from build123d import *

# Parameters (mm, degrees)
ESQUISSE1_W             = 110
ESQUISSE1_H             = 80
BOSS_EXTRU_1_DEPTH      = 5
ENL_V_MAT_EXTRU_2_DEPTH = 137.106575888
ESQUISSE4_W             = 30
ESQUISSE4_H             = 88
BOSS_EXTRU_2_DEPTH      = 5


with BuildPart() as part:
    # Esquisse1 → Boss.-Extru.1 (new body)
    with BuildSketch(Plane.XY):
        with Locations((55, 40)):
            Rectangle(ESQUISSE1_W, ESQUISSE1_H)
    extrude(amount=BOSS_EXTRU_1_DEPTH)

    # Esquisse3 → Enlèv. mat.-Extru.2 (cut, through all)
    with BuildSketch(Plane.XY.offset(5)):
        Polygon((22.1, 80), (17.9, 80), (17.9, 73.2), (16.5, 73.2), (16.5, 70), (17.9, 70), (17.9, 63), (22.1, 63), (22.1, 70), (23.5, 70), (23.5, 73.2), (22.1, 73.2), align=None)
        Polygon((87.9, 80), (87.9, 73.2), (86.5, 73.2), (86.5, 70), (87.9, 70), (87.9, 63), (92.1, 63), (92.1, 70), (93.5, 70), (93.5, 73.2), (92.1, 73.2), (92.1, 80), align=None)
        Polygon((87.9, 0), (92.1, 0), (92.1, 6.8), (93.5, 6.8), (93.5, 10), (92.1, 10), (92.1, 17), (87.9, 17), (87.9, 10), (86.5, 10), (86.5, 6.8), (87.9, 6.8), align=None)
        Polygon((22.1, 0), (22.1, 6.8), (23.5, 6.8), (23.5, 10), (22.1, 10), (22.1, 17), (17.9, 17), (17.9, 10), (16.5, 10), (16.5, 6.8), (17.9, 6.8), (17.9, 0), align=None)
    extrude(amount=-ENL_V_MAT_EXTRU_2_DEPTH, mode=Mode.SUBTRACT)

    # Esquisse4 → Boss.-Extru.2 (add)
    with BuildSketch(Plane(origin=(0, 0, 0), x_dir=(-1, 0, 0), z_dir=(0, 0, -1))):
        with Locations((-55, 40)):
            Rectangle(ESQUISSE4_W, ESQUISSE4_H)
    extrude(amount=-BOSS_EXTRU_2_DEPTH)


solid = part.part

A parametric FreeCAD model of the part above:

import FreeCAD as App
import Part
import Sketcher
from FreeCAD import Vector
Q = App.Units.Quantity

doc = App.newDocument("Part")
body = doc.addObject("PartDesign::Body", "Body")

# Sketch on XY plane
sketch1 = body.newObject("Sketcher::SketchObject", "Sketch")
sketch1.AttachmentSupport = (doc.getObject("XY_Plane"), [""])
sketch1.MapMode = "FlatFace"
sketch1.addGeometry(Part.LineSegment(Vector(0, 80, 0), Vector(0, 0, 0)), False)
sketch1.addGeometry(Part.LineSegment(Vector(0, 0, 0), Vector(110, 0, 0)), False)
sketch1.addGeometry(Part.LineSegment(Vector(110, 0, 0), Vector(110, 80, 0)), False)
sketch1.addGeometry(Part.LineSegment(Vector(110, 80, 0), Vector(0, 80, 0)), False)
sketch1.addConstraint(Sketcher.Constraint("Coincident", 0, 2, 1, 1))
sketch1.addConstraint(Sketcher.Constraint("Coincident", 1, 2, 2, 1))
sketch1.addConstraint(Sketcher.Constraint("Coincident", 2, 2, 3, 1))
sketch1.addConstraint(Sketcher.Constraint("Coincident", 3, 2, 0, 1))
sketch1.addConstraint(Sketcher.Constraint("Vertical", 0))
sketch1.addConstraint(Sketcher.Constraint("Horizontal", 1))
sketch1.addConstraint(Sketcher.Constraint("Vertical", 2))
sketch1.addConstraint(Sketcher.Constraint("Horizontal", 3))
sketch1.addConstraint(Sketcher.Constraint("Coincident", 0, 2, -1, 1))
sketch1.addConstraint(Sketcher.Constraint("DistanceX", 1, 1, 1, 2, Q("110 mm")))
sketch1.addConstraint(Sketcher.Constraint("DistanceY", 0, 2, 0, 1, Q("80 mm")))
pad1 = body.newObject("PartDesign::Pad", "Pad")
pad1.Profile = sketch1
pad1.Length = 5

# Sketch on XY plane
sketch2 = body.newObject("Sketcher::SketchObject", "Sketch001")
sketch2.AttachmentSupport = (doc.getObject("XY_Plane"), [""])
sketch2.MapMode = "FlatFace"
sketch2.AttachmentOffset = App.Placement(Vector(0, 0, 5), App.Rotation())
sketch2.addGeometry(Part.LineSegment(Vector(22.1, 80, 0), Vector(17.9, 80, 0)), False)
sketch2.addGeometry(Part.LineSegment(Vector(17.9, 80, 0), Vector(17.9, 73.2, 0)), False)
sketch2.addGeometry(Part.LineSegment(Vector(17.9, 73.2, 0), Vector(16.5, 73.2, 0)), False)
sketch2.addGeometry(Part.LineSegment(Vector(16.5, 73.2, 0), Vector(16.5, 70, 0)), False)
sketch2.addGeometry(Part.LineSegment(Vector(16.5, 70, 0), Vector(17.9, 70, 0)), False)
sketch2.addGeometry(Part.LineSegment(Vector(17.9, 70, 0), Vector(17.9, 63, 0)), False)
sketch2.addGeometry(Part.LineSegment(Vector(17.9, 63, 0), Vector(22.1, 63, 0)), False)
sketch2.addGeometry(Part.LineSegment(Vector(22.1, 63, 0), Vector(22.1, 70, 0)), False)
sketch2.addGeometry(Part.LineSegment(Vector(22.1, 70, 0), Vector(23.5, 70, 0)), False)
sketch2.addGeometry(Part.LineSegment(Vector(23.5, 70, 0), Vector(23.5, 73.2, 0)), False)
sketch2.addGeometry(Part.LineSegment(Vector(23.5, 73.2, 0), Vector(22.1, 73.2, 0)), False)
sketch2.addGeometry(Part.LineSegment(Vector(22.1, 73.2, 0), Vector(22.1, 80, 0)), False)
sketch2.addGeometry(Part.LineSegment(Vector(87.9, 80, 0), Vector(87.9, 73.2, 0)), False)
sketch2.addGeometry(Part.LineSegment(Vector(87.9, 73.2, 0), Vector(86.5, 73.2, 0)), False)
sketch2.addGeometry(Part.LineSegment(Vector(86.5, 73.2, 0), Vector(86.5, 70, 0)), False)
sketch2.addGeometry(Part.LineSegment(Vector(86.5, 70, 0), Vector(87.9, 70, 0)), False)
sketch2.addGeometry(Part.LineSegment(Vector(87.9, 70, 0), Vector(87.9, 63, 0)), False)
sketch2.addGeometry(Part.LineSegment(Vector(87.9, 63, 0), Vector(92.1, 63, 0)), False)
sketch2.addGeometry(Part.LineSegment(Vector(92.1, 63, 0), Vector(92.1, 70, 0)), False)
sketch2.addGeometry(Part.LineSegment(Vector(92.1, 70, 0), Vector(93.5, 70, 0)), False)
sketch2.addGeometry(Part.LineSegment(Vector(93.5, 70, 0), Vector(93.5, 73.2, 0)), False)
sketch2.addGeometry(Part.LineSegment(Vector(93.5, 73.2, 0), Vector(92.1, 73.2, 0)), False)
sketch2.addGeometry(Part.LineSegment(Vector(92.1, 73.2, 0), Vector(92.1, 80, 0)), False)
sketch2.addGeometry(Part.LineSegment(Vector(92.1, 80, 0), Vector(87.9, 80, 0)), False)
sketch2.addGeometry(Part.LineSegment(Vector(87.9, 0, 0), Vector(92.1, 0, 0)), False)
sketch2.addGeometry(Part.LineSegment(Vector(92.1, 0, 0), Vector(92.1, 6.8, 0)), False)
sketch2.addGeometry(Part.LineSegment(Vector(92.1, 6.8, 0), Vector(93.5, 6.8, 0)), False)
sketch2.addGeometry(Part.LineSegment(Vector(93.5, 6.8, 0), Vector(93.5, 10, 0)), False)
sketch2.addGeometry(Part.LineSegment(Vector(93.5, 10, 0), Vector(92.1, 10, 0)), False)
sketch2.addGeometry(Part.LineSegment(Vector(92.1, 10, 0), Vector(92.1, 17, 0)), False)
sketch2.addGeometry(Part.LineSegment(Vector(92.1, 17, 0), Vector(87.9, 17, 0)), False)
sketch2.addGeometry(Part.LineSegment(Vector(87.9, 17, 0), Vector(87.9, 10, 0)), False)
sketch2.addGeometry(Part.LineSegment(Vector(87.9, 10, 0), Vector(86.5, 10, 0)), False)
sketch2.addGeometry(Part.LineSegment(Vector(86.5, 10, 0), Vector(86.5, 6.8, 0)), False)
sketch2.addGeometry(Part.LineSegment(Vector(86.5, 6.8, 0), Vector(87.9, 6.8, 0)), False)
sketch2.addGeometry(Part.LineSegment(Vector(87.9, 6.8, 0), Vector(87.9, 0, 0)), False)
sketch2.addGeometry(Part.LineSegment(Vector(22.1, 0, 0), Vector(22.1, 6.8, 0)), False)
sketch2.addGeometry(Part.LineSegment(Vector(22.1, 6.8, 0), Vector(23.5, 6.8, 0)), False)
sketch2.addGeometry(Part.LineSegment(Vector(23.5, 6.8, 0), Vector(23.5, 10, 0)), False)
sketch2.addGeometry(Part.LineSegment(Vector(23.5, 10, 0), Vector(22.1, 10, 0)), False)
sketch2.addGeometry(Part.LineSegment(Vector(22.1, 10, 0), Vector(22.1, 17, 0)), False)
sketch2.addGeometry(Part.LineSegment(Vector(22.1, 17, 0), Vector(17.9, 17, 0)), False)
sketch2.addGeometry(Part.LineSegment(Vector(17.9, 17, 0), Vector(17.9, 10, 0)), False)
sketch2.addGeometry(Part.LineSegment(Vector(17.9, 10, 0), Vector(16.5, 10, 0)), False)
sketch2.addGeometry(Part.LineSegment(Vector(16.5, 10, 0), Vector(16.5, 6.8, 0)), False)
sketch2.addGeometry(Part.LineSegment(Vector(16.5, 6.8, 0), Vector(17.9, 6.8, 0)), False)
sketch2.addGeometry(Part.LineSegment(Vector(17.9, 6.8, 0), Vector(17.9, 0, 0)), False)
sketch2.addGeometry(Part.LineSegment(Vector(17.9, 0, 0), Vector(22.1, 0, 0)), False)
sketch2.addConstraint(Sketcher.Constraint("Coincident", 0, 2, 1, 1))
sketch2.addConstraint(Sketcher.Constraint("Coincident", 1, 2, 2, 1))
sketch2.addConstraint(Sketcher.Constraint("Coincident", 2, 2, 3, 1))
sketch2.addConstraint(Sketcher.Constraint("Coincident", 3, 2, 4, 1))
sketch2.addConstraint(Sketcher.Constraint("Coincident", 4, 2, 5, 1))
sketch2.addConstraint(Sketcher.Constraint("Coincident", 5, 2, 6, 1))
sketch2.addConstraint(Sketcher.Constraint("Coincident", 6, 2, 7, 1))
sketch2.addConstraint(Sketcher.Constraint("Coincident", 7, 2, 8, 1))
sketch2.addConstraint(Sketcher.Constraint("Coincident", 8, 2, 9, 1))
sketch2.addConstraint(Sketcher.Constraint("Coincident", 9, 2, 10, 1))
sketch2.addConstraint(Sketcher.Constraint("Coincident", 10, 2, 11, 1))
sketch2.addConstraint(Sketcher.Constraint("Coincident", 11, 2, 0, 1))
sketch2.addConstraint(Sketcher.Constraint("Coincident", 12, 2, 13, 1))
sketch2.addConstraint(Sketcher.Constraint("Coincident", 13, 2, 14, 1))
sketch2.addConstraint(Sketcher.Constraint("Coincident", 14, 2, 15, 1))
sketch2.addConstraint(Sketcher.Constraint("Coincident", 15, 2, 16, 1))
sketch2.addConstraint(Sketcher.Constraint("Coincident", 16, 2, 17, 1))
sketch2.addConstraint(Sketcher.Constraint("Coincident", 17, 2, 18, 1))
sketch2.addConstraint(Sketcher.Constraint("Coincident", 18, 2, 19, 1))
sketch2.addConstraint(Sketcher.Constraint("Coincident", 19, 2, 20, 1))
sketch2.addConstraint(Sketcher.Constraint("Coincident", 20, 2, 21, 1))
sketch2.addConstraint(Sketcher.Constraint("Coincident", 21, 2, 22, 1))
sketch2.addConstraint(Sketcher.Constraint("Coincident", 22, 2, 23, 1))
sketch2.addConstraint(Sketcher.Constraint("Coincident", 23, 2, 12, 1))
sketch2.addConstraint(Sketcher.Constraint("Coincident", 24, 2, 25, 1))
sketch2.addConstraint(Sketcher.Constraint("Coincident", 25, 2, 26, 1))
sketch2.addConstraint(Sketcher.Constraint("Coincident", 26, 2, 27, 1))
sketch2.addConstraint(Sketcher.Constraint("Coincident", 27, 2, 28, 1))
sketch2.addConstraint(Sketcher.Constraint("Coincident", 28, 2, 29, 1))
sketch2.addConstraint(Sketcher.Constraint("Coincident", 29, 2, 30, 1))
sketch2.addConstraint(Sketcher.Constraint("Coincident", 30, 2, 31, 1))
sketch2.addConstraint(Sketcher.Constraint("Coincident", 31, 2, 32, 1))
sketch2.addConstraint(Sketcher.Constraint("Coincident", 32, 2, 33, 1))
sketch2.addConstraint(Sketcher.Constraint("Coincident", 33, 2, 34, 1))
sketch2.addConstraint(Sketcher.Constraint("Coincident", 34, 2, 35, 1))
sketch2.addConstraint(Sketcher.Constraint("Coincident", 35, 2, 24, 1))
sketch2.addConstraint(Sketcher.Constraint("Coincident", 36, 2, 37, 1))
sketch2.addConstraint(Sketcher.Constraint("Coincident", 37, 2, 38, 1))
sketch2.addConstraint(Sketcher.Constraint("Coincident", 38, 2, 39, 1))
sketch2.addConstraint(Sketcher.Constraint("Coincident", 39, 2, 40, 1))
sketch2.addConstraint(Sketcher.Constraint("Coincident", 40, 2, 41, 1))
sketch2.addConstraint(Sketcher.Constraint("Coincident", 41, 2, 42, 1))
sketch2.addConstraint(Sketcher.Constraint("Coincident", 42, 2, 43, 1))
sketch2.addConstraint(Sketcher.Constraint("Coincident", 43, 2, 44, 1))
sketch2.addConstraint(Sketcher.Constraint("Coincident", 44, 2, 45, 1))
sketch2.addConstraint(Sketcher.Constraint("Coincident", 45, 2, 46, 1))
sketch2.addConstraint(Sketcher.Constraint("Coincident", 46, 2, 47, 1))
sketch2.addConstraint(Sketcher.Constraint("Coincident", 47, 2, 36, 1))
sketch2.addConstraint(Sketcher.Constraint("Horizontal", 0))
sketch2.addConstraint(Sketcher.Constraint("Vertical", 1))
sketch2.addConstraint(Sketcher.Constraint("Horizontal", 2))
sketch2.addConstraint(Sketcher.Constraint("Vertical", 3))
sketch2.addConstraint(Sketcher.Constraint("Horizontal", 4))
sketch2.addConstraint(Sketcher.Constraint("Vertical", 5))
sketch2.addConstraint(Sketcher.Constraint("Horizontal", 6))
sketch2.addConstraint(Sketcher.Constraint("Vertical", 7))
sketch2.addConstraint(Sketcher.Constraint("Horizontal", 8))
sketch2.addConstraint(Sketcher.Constraint("Vertical", 9))
sketch2.addConstraint(Sketcher.Constraint("Horizontal", 10))
sketch2.addConstraint(Sketcher.Constraint("Vertical", 11))
sketch2.addConstraint(Sketcher.Constraint("Vertical", 12))
sketch2.addConstraint(Sketcher.Constraint("Horizontal", 13))
sketch2.addConstraint(Sketcher.Constraint("Vertical", 14))
sketch2.addConstraint(Sketcher.Constraint("Horizontal", 15))
sketch2.addConstraint(Sketcher.Constraint("Vertical", 16))
sketch2.addConstraint(Sketcher.Constraint("Horizontal", 17))
sketch2.addConstraint(Sketcher.Constraint("Vertical", 18))
sketch2.addConstraint(Sketcher.Constraint("Horizontal", 19))
sketch2.addConstraint(Sketcher.Constraint("Vertical", 20))
sketch2.addConstraint(Sketcher.Constraint("Horizontal", 21))
sketch2.addConstraint(Sketcher.Constraint("Vertical", 22))
sketch2.addConstraint(Sketcher.Constraint("Horizontal", 23))
sketch2.addConstraint(Sketcher.Constraint("Horizontal", 24))
sketch2.addConstraint(Sketcher.Constraint("Vertical", 25))
sketch2.addConstraint(Sketcher.Constraint("Horizontal", 26))
sketch2.addConstraint(Sketcher.Constraint("Vertical", 27))
sketch2.addConstraint(Sketcher.Constraint("Horizontal", 28))
sketch2.addConstraint(Sketcher.Constraint("Vertical", 29))
sketch2.addConstraint(Sketcher.Constraint("Horizontal", 30))
sketch2.addConstraint(Sketcher.Constraint("Vertical", 31))
sketch2.addConstraint(Sketcher.Constraint("Horizontal", 32))
sketch2.addConstraint(Sketcher.Constraint("Vertical", 33))
sketch2.addConstraint(Sketcher.Constraint("Horizontal", 34))
sketch2.addConstraint(Sketcher.Constraint("Vertical", 35))
sketch2.addConstraint(Sketcher.Constraint("Vertical", 36))
sketch2.addConstraint(Sketcher.Constraint("Horizontal", 37))
sketch2.addConstraint(Sketcher.Constraint("Vertical", 38))
sketch2.addConstraint(Sketcher.Constraint("Horizontal", 39))
sketch2.addConstraint(Sketcher.Constraint("Vertical", 40))
sketch2.addConstraint(Sketcher.Constraint("Horizontal", 41))
sketch2.addConstraint(Sketcher.Constraint("Vertical", 42))
sketch2.addConstraint(Sketcher.Constraint("Horizontal", 43))
sketch2.addConstraint(Sketcher.Constraint("Vertical", 44))
sketch2.addConstraint(Sketcher.Constraint("Horizontal", 45))
sketch2.addConstraint(Sketcher.Constraint("Vertical", 46))
sketch2.addConstraint(Sketcher.Constraint("Horizontal", 47))
sketch2.addConstraint(Sketcher.Constraint("PointOnObject", 24, 2, -1))
sketch2.addConstraint(Sketcher.Constraint("PointOnObject", 46, 2, -1))
sketch2.addConstraint(Sketcher.Constraint("Horizontal", 4, 2, 7, 2))
sketch2.addConstraint(Sketcher.Constraint("Horizontal", 2, 2, 9, 2))
sketch2.addConstraint(Sketcher.Constraint("Horizontal", 10, 2, 12, 2))
sketch2.addConstraint(Sketcher.Constraint("Horizontal", 8, 2, 14, 2))
sketch2.addConstraint(Sketcher.Constraint("Horizontal", 6, 2, 16, 2))
sketch2.addConstraint(Sketcher.Constraint("Horizontal", 15, 2, 18, 2))
sketch2.addConstraint(Sketcher.Constraint("Horizontal", 13, 2, 20, 2))
sketch2.addConstraint(Sketcher.Constraint("Horizontal", 11, 2, 22, 2))
sketch2.addConstraint(Sketcher.Constraint("Horizontal", 28, 2, 31, 2))
sketch2.addConstraint(Sketcher.Constraint("Horizontal", 26, 2, 33, 2))
sketch2.addConstraint(Sketcher.Constraint("Horizontal", 34, 2, 36, 2))
sketch2.addConstraint(Sketcher.Constraint("Horizontal", 32, 2, 38, 2))
sketch2.addConstraint(Sketcher.Constraint("Horizontal", 30, 2, 40, 2))
sketch2.addConstraint(Sketcher.Constraint("Horizontal", 39, 2, 42, 2))
sketch2.addConstraint(Sketcher.Constraint("Horizontal", 37, 2, 44, 2))
sketch2.addConstraint(Sketcher.Constraint("Vertical", 1, 2, 4, 2))
sketch2.addConstraint(Sketcher.Constraint("Vertical", 7, 2, 10, 2))
sketch2.addConstraint(Sketcher.Constraint("Vertical", 12, 2, 15, 2))
sketch2.addConstraint(Sketcher.Constraint("Vertical", 18, 2, 21, 2))
sketch2.addConstraint(Sketcher.Constraint("Vertical", 22, 2, 24, 2))
sketch2.addConstraint(Sketcher.Constraint("Vertical", 20, 2, 26, 2))
sketch2.addConstraint(Sketcher.Constraint("Vertical", 25, 2, 28, 2))
sketch2.addConstraint(Sketcher.Constraint("Vertical", 23, 2, 30, 2))
sketch2.addConstraint(Sketcher.Constraint("Vertical", 14, 2, 32, 2))
sketch2.addConstraint(Sketcher.Constraint("Vertical", 31, 2, 34, 2))
sketch2.addConstraint(Sketcher.Constraint("Vertical", 11, 2, 36, 2))
sketch2.addConstraint(Sketcher.Constraint("Vertical", 9, 2, 37, 2))
sketch2.addConstraint(Sketcher.Constraint("Vertical", 36, 2, 39, 2))
sketch2.addConstraint(Sketcher.Constraint("Vertical", 5, 2, 41, 2))
sketch2.addConstraint(Sketcher.Constraint("Vertical", 3, 2, 43, 2))
sketch2.addConstraint(Sketcher.Constraint("Vertical", 42, 2, 45, 2))
sketch2.addConstraint(Sketcher.Constraint("Equal", 4, 8))
sketch2.addConstraint(Sketcher.Constraint("Equal", 10, 13))
sketch2.addConstraint(Sketcher.Constraint("Equal", 6, 17))
sketch2.addConstraint(Sketcher.Constraint("Equal", 15, 19))
sketch2.addConstraint(Sketcher.Constraint("Equal", 22, 25))
sketch2.addConstraint(Sketcher.Constraint("Equal", 20, 27))
sketch2.addConstraint(Sketcher.Constraint("Equal", 18, 29))
sketch2.addConstraint(Sketcher.Constraint("DistanceY", 5, 2, 5, 1, Q("7 mm")))
sketch2.addConstraint(Sketcher.Constraint("DistanceX", 0, 2, 0, 1, Q("4.2 mm")))
sketch2.addConstraint(Sketcher.Constraint("DistanceX", 2, 2, 2, 1, Q("1.4 mm")))
sketch2.addConstraint(Sketcher.Constraint("DistanceY", 1, 2, 1, 1, Q("6.8 mm")))
sketch2.addConstraint(Sketcher.Constraint("DistanceY", 3, 2, 3, 1, Q("3.2 mm")))
sketch2.addConstraint(Sketcher.Constraint("DistanceY", -1, 1, 0, 2, Q("80 mm")))
sketch2.addConstraint(Sketcher.Constraint("DistanceX", 9, 2, 13, 2, Q("63 mm")))
sketch2.addConstraint(Sketcher.Constraint("DistanceX", -1, 1, 0, 2, Q("17.9 mm")))
pocket1 = body.newObject("PartDesign::Pocket", "Pocket")
pocket1.Profile = sketch2
pocket1.Type = "ThroughAll"

# Sketch on XY plane
sketch3 = body.newObject("Sketcher::SketchObject", "Sketch002")
sketch3.AttachmentSupport = (doc.getObject("XY_Plane"), [""])
sketch3.MapMode = "FlatFace"
sketch3.addGeometry(Part.LineSegment(Vector(70, 84, 0), Vector(70, -4, 0)), False)
sketch3.addGeometry(Part.LineSegment(Vector(70, -4, 0), Vector(40, -4, 0)), False)
sketch3.addGeometry(Part.LineSegment(Vector(40, -4, 0), Vector(40, 84, 0)), False)
sketch3.addGeometry(Part.LineSegment(Vector(40, 84, 0), Vector(70, 84, 0)), False)
sketch3.addConstraint(Sketcher.Constraint("Coincident", 0, 2, 1, 1))
sketch3.addConstraint(Sketcher.Constraint("Coincident", 1, 2, 2, 1))
sketch3.addConstraint(Sketcher.Constraint("Coincident", 2, 2, 3, 1))
sketch3.addConstraint(Sketcher.Constraint("Coincident", 3, 2, 0, 1))
sketch3.addConstraint(Sketcher.Constraint("Vertical", 0))
sketch3.addConstraint(Sketcher.Constraint("Horizontal", 1))
sketch3.addConstraint(Sketcher.Constraint("Vertical", 2))
sketch3.addConstraint(Sketcher.Constraint("Horizontal", 3))
sketch3.addConstraint(Sketcher.Constraint("DistanceX", 1, 2, 1, 1, Q("30 mm")))
sketch3.addConstraint(Sketcher.Constraint("DistanceY", 0, 2, 0, 1, Q("88 mm")))
sketch3.addConstraint(Sketcher.Constraint("DistanceX", -1, 1, 0, 2, Q("70 mm")))
sketch3.addConstraint(Sketcher.Constraint("DistanceY", 0, 2, -1, 1, Q("4 mm")))
pad2 = body.newObject("PartDesign::Pad", "Pad001")
pad2.Profile = sketch3
pad2.Length = 5

doc.recompute()
